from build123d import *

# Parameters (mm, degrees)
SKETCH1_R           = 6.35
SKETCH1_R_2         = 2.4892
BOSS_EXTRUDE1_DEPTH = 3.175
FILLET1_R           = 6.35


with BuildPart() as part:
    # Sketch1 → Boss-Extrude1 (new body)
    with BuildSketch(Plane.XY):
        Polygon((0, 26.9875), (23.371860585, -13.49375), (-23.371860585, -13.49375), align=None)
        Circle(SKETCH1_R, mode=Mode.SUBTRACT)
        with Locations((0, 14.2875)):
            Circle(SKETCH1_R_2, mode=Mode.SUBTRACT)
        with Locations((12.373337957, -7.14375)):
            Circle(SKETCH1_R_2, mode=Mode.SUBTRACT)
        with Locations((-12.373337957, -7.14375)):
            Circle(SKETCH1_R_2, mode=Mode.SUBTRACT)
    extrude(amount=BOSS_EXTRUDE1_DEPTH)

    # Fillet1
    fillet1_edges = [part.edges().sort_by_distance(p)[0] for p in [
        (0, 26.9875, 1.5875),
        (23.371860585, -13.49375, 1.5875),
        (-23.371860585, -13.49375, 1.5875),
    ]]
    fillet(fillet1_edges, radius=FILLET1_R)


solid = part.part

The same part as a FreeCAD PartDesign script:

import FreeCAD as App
import Part
import Sketcher

V = App.Vector
Q = App.Units.Quantity


def edges_at(feature, points):
    """Names of the edges that pass closest to the given points."""
    edges = feature.Shape.Edges
    near = lambda p: min(range(len(edges)), key=lambda i: edges[i].distToShape(Part.Vertex(*p))[0])
    return sorted({f"Edge{near(p) + 1}" for p in points})

doc = App.newDocument("Part")
params = doc.addObject("Spreadsheet::Sheet", "Params")
for row, (alias, value) in enumerate([
    ("sketch1_diameter", "0.5 in"),
    ("sketch1_diameter2", "0.196 in"),
    ("pad1_length", "0.125 in"),
    ("fillet_radius", "0.25 in"),
], start=1):
    params.set(f"A{row}", alias)
    params.set(f"B{row}", "=" + value)
    params.setAlias(f"B{row}", alias)

body = doc.addObject("PartDesign::Body", "Body")

sketch1 = body.newObject("Sketcher::SketchObject", "Sketch")
sketch1.AttachmentSupport = (doc.getObject("XY_Plane"), [""])
sketch1.MapMode = "FlatFace"
sketch1.addGeometry([
    Part.LineSegment(V(23.4, -13.5, 0), V(0, 27, 0)),
    Part.LineSegment(V(0, 27, 0), V(-23.4, -13.5, 0)),
    Part.LineSegment(V(-23.4, -13.5, 0), V(23.4, -13.5, 0)),
    Part.Circle(V(12.4, -7.1, 0), V(0, 0, 1), 2.5),
    Part.Circle(V(-12.4, -7.1, 0), V(0, 0, 1), 2.5),
    Part.Circle(V(0, 0, 0), V(0, 0, 1), 6.3),
    Part.Circle(V(0, 14.3, 0), V(0, 0, 1), 2.5),
], False)
sketch1.addConstraint([
    Sketcher.Constraint("Coincident", 0, 2, 1, 1),
    Sketcher.Constraint("Coincident", 1, 2, 2, 1),
    Sketcher.Constraint("Coincident", 2, 2, 0, 1),
    Sketcher.Constraint("Horizontal", 2),
    Sketcher.Constraint("Coincident", 5, 3, -1, 1),
    Sketcher.Constraint("Equal", 3, 4),
    Sketcher.Constraint("Equal", 4, 6),
    Sketcher.Constraint("Symmetric", 3, 3, 4, 3, -2),
    Sketcher.Constraint("PointOnObject", 6, 3, -2),
    Sketcher.Constraint("PointOnObject", 0, 2, -2),
    Sketcher.Constraint("Equal", 0, 1),
    Sketcher.Constraint("Diameter", 5, Q("0.5 in")),
    Sketcher.Constraint("Diameter", 3, Q("0.196 in")),
    Sketcher.Constraint("Angle", 0, Q("120 deg")),
    Sketcher.Constraint("DistanceY", 6, 3, 0, 2, Q("0.5 in")),
    Sketcher.Constraint("DistanceY", 1, 2, 4, 3, Q("0.25 in")),
    Sketcher.Constraint("DistanceY", 3, 3, -1, 1, Q("0.28125 in")),
    Sketcher.Constraint("DistanceY", -1, 1, 6, 3, Q("0.5625 in")),
    Sketcher.Constraint("DistanceX", 1, 2, 3, 3, 35.745199),
])
sketch1.setExpression("Constraints[11]", "Params.sketch1_diameter")
sketch1.setExpression("Constraints[12]", "Params.sketch1_diameter2")
pad1 = body.newObject("PartDesign::Pad", "Pad")
pad1.Profile = sketch1
pad1.setExpression("Length", "Params.pad1_length")
doc.recompute()

fillet = body.newObject("PartDesign::Fillet", "Fillet")
fillet.Base = (pad1, edges_at(pad1, [(0, 26.988, 1.587), (23.372, -13.494, 1.587), (-23.372, -13.494, 1.587)]))
fillet.setExpression("Radius", "Params.fillet_radius")

doc.recompute()
